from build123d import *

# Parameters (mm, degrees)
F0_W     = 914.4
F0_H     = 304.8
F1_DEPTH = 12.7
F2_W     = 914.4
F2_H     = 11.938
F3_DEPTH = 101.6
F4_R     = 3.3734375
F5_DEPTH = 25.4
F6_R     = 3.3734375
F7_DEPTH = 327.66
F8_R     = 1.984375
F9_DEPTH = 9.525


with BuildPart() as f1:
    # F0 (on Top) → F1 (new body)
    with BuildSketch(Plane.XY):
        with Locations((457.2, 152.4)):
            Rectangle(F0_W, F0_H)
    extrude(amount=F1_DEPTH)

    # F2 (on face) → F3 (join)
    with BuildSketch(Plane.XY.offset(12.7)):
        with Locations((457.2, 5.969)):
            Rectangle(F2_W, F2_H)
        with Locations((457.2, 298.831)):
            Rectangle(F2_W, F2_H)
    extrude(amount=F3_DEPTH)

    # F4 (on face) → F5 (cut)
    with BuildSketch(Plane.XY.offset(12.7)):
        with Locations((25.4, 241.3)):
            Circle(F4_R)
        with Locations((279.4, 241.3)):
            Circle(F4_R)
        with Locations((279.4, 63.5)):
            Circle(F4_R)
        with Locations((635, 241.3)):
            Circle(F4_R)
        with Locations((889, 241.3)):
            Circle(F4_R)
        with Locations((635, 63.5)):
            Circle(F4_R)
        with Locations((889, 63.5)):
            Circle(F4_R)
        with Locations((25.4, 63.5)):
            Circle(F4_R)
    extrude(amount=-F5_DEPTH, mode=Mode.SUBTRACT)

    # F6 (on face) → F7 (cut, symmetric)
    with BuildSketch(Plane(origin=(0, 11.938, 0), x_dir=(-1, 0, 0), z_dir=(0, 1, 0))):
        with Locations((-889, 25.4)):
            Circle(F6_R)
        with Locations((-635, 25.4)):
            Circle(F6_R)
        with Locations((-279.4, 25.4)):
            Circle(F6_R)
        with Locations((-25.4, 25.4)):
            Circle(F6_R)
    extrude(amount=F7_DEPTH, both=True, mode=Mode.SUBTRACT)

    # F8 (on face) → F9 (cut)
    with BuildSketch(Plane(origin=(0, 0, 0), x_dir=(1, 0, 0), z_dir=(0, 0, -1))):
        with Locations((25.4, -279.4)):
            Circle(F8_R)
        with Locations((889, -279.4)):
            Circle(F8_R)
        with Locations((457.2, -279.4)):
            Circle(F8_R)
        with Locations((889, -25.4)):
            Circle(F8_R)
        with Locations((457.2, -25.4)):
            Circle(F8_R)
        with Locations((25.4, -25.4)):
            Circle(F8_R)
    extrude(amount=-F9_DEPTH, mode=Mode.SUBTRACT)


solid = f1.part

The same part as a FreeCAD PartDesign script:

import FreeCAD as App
import Part
import Sketcher

V = App.Vector
Q = App.Units.Quantity

doc = App.newDocument("Part")
params = doc.addObject("Spreadsheet::Sheet", "Params")
for row, (alias, value) in enumerate([
    ("sketch1_width", "36 in"),
    ("sketch1_height", "12 in"),
    ("pad1_length", "0.5 in"),
    ("sketch2_width", "36 in"),
    ("sketch2_height", "0.47 in"),
    ("pad2_length", "4 in"),
    ("sketch3_diameter", "0.265625 in"),
    ("pocket1_length", "1 in"),
    ("sketch4_diameter", "0.265625 in"),
    ("pocket2_length", "25.8 in"),
    ("sketch5_diameter", "0.15625 in"),
    ("pocket3_length", "0.375 in"),
], start=1):
    params.set(f"A{row}", alias)
    params.set(f"B{row}", "=" + value)
    params.setAlias(f"B{row}", alias)

body = doc.addObject("PartDesign::Body", "Body")

sketch1 = body.newObject("Sketcher::SketchObject", "Sketch")
sketch1.AttachmentSupport = (doc.getObject("XY_Plane"), [""])
sketch1.MapMode = "FlatFace"
sketch1.addGeometry([
    Part.LineSegment(V(0, 304.8, 0), V(0, 0, 0)),
    Part.LineSegment(V(0, 0, 0), V(914.4, 0, 0)),
    Part.LineSegment(V(914.4, 0, 0), V(914.4, 304.8, 0)),
    Part.LineSegment(V(914.4, 304.8, 0), V(0, 304.8, 0)),
], False)
sketch1.addConstraint([
    Sketcher.Constraint("Coincident", 0, 2, 1, 1),
    Sketcher.Constraint("Coincident", 1, 2, 2, 1),
    Sketcher.Constraint("Coincident", 2, 2, 3, 1),
    Sketcher.Constraint("Coincident", 3, 2, 0, 1),
    Sketcher.Constraint("Vertical", 0),
    Sketcher.Constraint("Horizontal", 1),
    Sketcher.Constraint("Vertical", 2),
    Sketcher.Constraint("Horizontal", 3),
    Sketcher.Constraint("Coincident", 0, 2, -1, 1),
    Sketcher.Constraint("DistanceX", 1, 1, 1, 2, Q("36 in")),
    Sketcher.Constraint("DistanceY", 0, 2, 0, 1, Q("12 in")),
])
sketch1.setExpression("Constraints[9]", "Params.sketch1_width")
sketch1.setExpression("Constraints[10]", "Params.sketch1_height")
pad1 = body.newObject("PartDesign::Pad", "Pad")
pad1.Profile = sketch1
pad1.setExpression("Length", "Params.pad1_length")

sketch2 = body.newObject("Sketcher::SketchObject", "Sketch001")
sketch2.AttachmentSupport = (doc.getObject("XY_Plane"), [""])
sketch2.MapMode = "FlatFace"
sketch2.AttachmentOffset = App.Placement(V(0, 0, 0.5 * 25.4), App.Rotation())
sketch2.addGeometry([
    Part.LineSegment(V(0, 11.938, 0), V(0, 0, 0)),
    Part.LineSegment(V(0, 0, 0), V(914.4, 0, 0)),
    Part.LineSegment(V(914.4, 0, 0), V(914.4, 11.938, 0)),
    Part.LineSegment(V(914.4, 11.938, 0), V(0, 11.938, 0)),
    Part.LineSegment(V(0, 304.8, 0), V(0, 292.862, 0)),
    Part.LineSegment(V(0, 292.862, 0), V(914.4, 292.862, 0)),
    Part.LineSegment(V(914.4, 292.862, 0), V(914.4, 304.8, 0)),
    Part.LineSegment(V(914.4, 304.8, 0), V(0, 304.8, 0)),
], False)
sketch2.addConstraint([
    Sketcher.Constraint("Coincident", 0, 2, 1, 1),
    Sketcher.Constraint("Coincident", 1, 2, 2, 1),
    Sketcher.Constraint("Coincident", 2, 2, 3, 1),
    Sketcher.Constraint("Coincident", 3, 2, 0, 1),
    Sketcher.Constraint("Coincident", 4, 2, 5, 1),
    Sketcher.Constraint("Coincident", 5, 2, 6, 1),
    Sketcher.Constraint("Coincident", 6, 2, 7, 1),
    Sketcher.Constraint("Coincident", 7, 2, 4, 1),
    Sketcher.Constraint("Vertical", 0),
    Sketcher.Constraint("Horizontal", 1),
    Sketcher.Constraint("Vertical", 2),
    Sketcher.Constraint("Horizontal", 3),
    Sketcher.Constraint("Vertical", 4),
    Sketcher.Constraint("Horizontal", 5),
    Sketcher.Constraint("Vertical", 6),
    Sketcher.Constraint("Horizontal", 7),
    Sketcher.Constraint("Coincident", 0, 2, -1, 1),
    Sketcher.Constraint("PointOnObject", 4, 2, -2),
    Sketcher.Constraint("Vertical", 2, 2, 5, 2),
    Sketcher.Constraint("Equal", 2, 4),
    Sketcher.Constraint("DistanceX", 1, 1, 1, 2, Q("36 in")),
    Sketcher.Constraint("DistanceY", -1, 1, 6, 2, Q("12 in")),
    Sketcher.Constraint("DistanceY", 0, 2, 0, 1, Q("0.47 in")),
])
sketch2.setExpression("Constraints[20]", "Params.sketch2_width")
sketch2.setExpression("Constraints[22]", "Params.sketch2_height")
pad2 = body.newObject("PartDesign::Pad", "Pad001")
pad2.Profile = sketch2
pad2.setExpression("Length", "Params.pad2_length")

sketch3 = body.newObject("Sketcher::SketchObject", "Sketch002")
sketch3.AttachmentSupport = (doc.getObject("XY_Plane"), [""])
sketch3.MapMode = "FlatFace"
sketch3.AttachmentOffset = App.Placement(V(0, 0, 0.5 * 25.4), App.Rotation())
sketch3.addGeometry([
    Part.Circle(V(25.4, 241.3, 0), V(0, 0, 1), 3.373438),
    Part.Circle(V(279.4, 241.3, 0), V(0, 0, 1), 3.373438),
    Part.Circle(V(279.4, 63.5, 0), V(0, 0, 1), 3.373438),
    Part.Circle(V(635, 241.3, 0), V(0, 0, 1), 3.373438),
    Part.Circle(V(889, 241.3, 0), V(0, 0, 1), 3.373438),
    Part.Circle(V(635, 63.5, 0), V(0, 0, 1), 3.373438),
    Part.Circle(V(889, 63.5, 0), V(0, 0, 1), 3.373438),
    Part.Circle(V(25.4, 63.5, 0), V(0, 0, 1), 3.373438),
], False)
sketch3.addConstraint([
    Sketcher.Constraint("Equal", 0, 1),
    Sketcher.Constraint("Equal", 1, 2),
    Sketcher.Constraint("Equal", 2, 3),
    Sketcher.Constraint("Equal", 3, 4),
    Sketcher.Constraint("Equal", 4, 5),
    Sketcher.Constraint("Equal", 5, 6),
    Sketcher.Constraint("Equal", 6, 7),
    Sketcher.Constraint("Horizontal", 0, 3, 1, 3),
    Sketcher.Constraint("Horizontal", 1, 3, 3, 3),
    Sketcher.Constraint("Horizontal", 3, 3, 4, 3),
    Sketcher.Constraint("Horizontal", 2, 3, 5, 3),
    Sketcher.Constraint("Horizontal", 5, 3, 6, 3),
    Sketcher.Constraint("Horizontal", 6, 3, 7, 3),
    Sketcher.Constraint("Vertical", 1, 3, 2, 3),
    Sketcher.Constraint("Vertical", 3, 3, 5, 3),
    Sketcher.Constraint("Vertical", 4, 3, 6, 3),
    Sketcher.Constraint("Vertical", 0, 3, 7, 3),
    Sketcher.Constraint("Diameter", 0, Q("0.265625 in")),
    Sketcher.Constraint("DistanceX", -1, 1, 0, 3, Q("1 in")),
    Sketcher.Constraint("DistanceX", -1, 1, 1, 3, Q("11 in")),
    Sketcher.Constraint("DistanceX", -1, 1, 3, 3, Q("25 in")),
    Sketcher.Constraint("DistanceX", -1, 1, 4, 3, Q("35 in")),
    Sketcher.Constraint("DistanceY", 2, 3, 1, 3, Q("7 in")),
    Sketcher.Constraint("DistanceY", -1, 1, 0, 3, Q("9.5 in")),
])
sketch3.setExpression("Constraints[17]", "Params.sketch3_diameter")
pocket1 = body.newObject("PartDesign::Pocket", "Pocket")
pocket1.Profile = sketch3
pocket1.setExpression("Length", "Params.pocket1_length")

sketch4 = body.newObject("Sketcher::SketchObject", "Sketch003")
sketch4.AttachmentSupport = (doc.getObject("XZ_Plane"), [""])
sketch4.MapMode = "FlatFace"
sketch4.AttachmentOffset = App.Placement(V(0, 0, -0.47 * 25.4), App.Rotation())
sketch4.addGeometry([
    Part.Circle(V(889, 25.4, 0), V(0, 0, 1), 3.373438),
    Part.Circle(V(635, 25.4, 0), V(0, 0, 1), 3.373438),
    Part.Circle(V(279.4, 25.4, 0), V(0, 0, 1), 3.373438),
    Part.Circle(V(25.4, 25.4, 0), V(0, 0, 1), 3.373438),
], False)
sketch4.addConstraint([
    Sketcher.Constraint("Equal", 0, 1),
    Sketcher.Constraint("Equal", 1, 2),
    Sketcher.Constraint("Equal", 2, 3),
    Sketcher.Constraint("Horizontal", 0, 3, 1, 3),
    Sketcher.Constraint("Horizontal", 1, 3, 2, 3),
    Sketcher.Constraint("Horizontal", 2, 3, 3, 3),
    Sketcher.Constraint("Diameter", 0, Q("0.265625 in")),
    Sketcher.Constraint("DistanceX", -1, 1, 0, 3, Q("35 in")),
    Sketcher.Constraint("DistanceY", -1, 1, 0, 3, Q("1 in")),
    Sketcher.Constraint("DistanceX", -1, 1, 1, 3, Q("25 in")),
    Sketcher.Constraint("DistanceX", -1, 1, 2, 3, Q("11 in")),
    Sketcher.Constraint("DistanceX", -1, 1, 3, 3, Q("1 in")),
])
sketch4.setExpression("Constraints[6]", "Params.sketch4_diameter")
pocket2 = body.newObject("PartDesign::Pocket", "Pocket001")
pocket2.Profile = sketch4
pocket2.setExpression("Length", "Params.pocket2_length")
pocket2.Midplane = True

sketch5 = body.newObject("Sketcher::SketchObject", "Sketch004")
sketch5.AttachmentSupport = (doc.getObject("XY_Plane"), [""])
sketch5.MapMode = "FlatFace"
sketch5.addGeometry([
    Part.Circle(V(25.4, 279.4, 0), V(0, 0, 1), 1.984375),
    Part.Circle(V(889, 279.4, 0), V(0, 0, 1), 1.984375),
    Part.Circle(V(457.2, 279.4, 0), V(0, 0, 1), 1.984375),
    Part.Circle(V(889, 25.4, 0), V(0, 0, 1), 1.984375),
    Part.Circle(V(457.2, 25.4, 0), V(0, 0, 1), 1.984375),
    Part.Circle(V(25.4, 25.4, 0), V(0, 0, 1), 1.984375),
], False)
sketch5.addConstraint([
    Sketcher.Constraint("Equal", 0, 1),
    Sketcher.Constraint("Equal", 1, 2),
    Sketcher.Constraint("Equal", 2, 3),
    Sketcher.Constraint("Equal", 3, 4),
    Sketcher.Constraint("Equal", 4, 5),
    Sketcher.Constraint("Horizontal", 0, 3, 1, 3),
    Sketcher.Constraint("Horizontal", 1, 3, 2, 3),
    Sketcher.Constraint("Horizontal", 3, 3, 4, 3),
    Sketcher.Constraint("Horizontal", 4, 3, 5, 3),
    Sketcher.Constraint("Vertical", 1, 3, 3, 3),
    Sketcher.Constraint("Vertical", 2, 3, 4, 3),
    Sketcher.Constraint("Vertical", 0, 3, 5, 3),
    Sketcher.Constraint("Diameter", 0, Q("0.15625 in")),
    Sketcher.Constraint("DistanceX", -1, 1, 0, 3, Q("1 in")),
    Sketcher.Constraint("DistanceY", -1, 1, 0, 3, Q("11 in")),
    Sketcher.Constraint("DistanceX", -1, 1, 1, 3, Q("35 in")),
    Sketcher.Constraint("DistanceX", -1, 1, 2, 3, Q("18 in")),
    Sketcher.Constraint("DistanceY", -1, 1, 3, 3, Q("1 in")),
])
sketch5.setExpression("Constraints[12]", "Params.sketch5_diameter")
pocket3 = body.newObject("PartDesign::Pocket", "Pocket002")
pocket3.Profile = sketch5
pocket3.setExpression("Length", "Params.pocket3_length")
pocket3.Reversed = True

doc.recompute()
